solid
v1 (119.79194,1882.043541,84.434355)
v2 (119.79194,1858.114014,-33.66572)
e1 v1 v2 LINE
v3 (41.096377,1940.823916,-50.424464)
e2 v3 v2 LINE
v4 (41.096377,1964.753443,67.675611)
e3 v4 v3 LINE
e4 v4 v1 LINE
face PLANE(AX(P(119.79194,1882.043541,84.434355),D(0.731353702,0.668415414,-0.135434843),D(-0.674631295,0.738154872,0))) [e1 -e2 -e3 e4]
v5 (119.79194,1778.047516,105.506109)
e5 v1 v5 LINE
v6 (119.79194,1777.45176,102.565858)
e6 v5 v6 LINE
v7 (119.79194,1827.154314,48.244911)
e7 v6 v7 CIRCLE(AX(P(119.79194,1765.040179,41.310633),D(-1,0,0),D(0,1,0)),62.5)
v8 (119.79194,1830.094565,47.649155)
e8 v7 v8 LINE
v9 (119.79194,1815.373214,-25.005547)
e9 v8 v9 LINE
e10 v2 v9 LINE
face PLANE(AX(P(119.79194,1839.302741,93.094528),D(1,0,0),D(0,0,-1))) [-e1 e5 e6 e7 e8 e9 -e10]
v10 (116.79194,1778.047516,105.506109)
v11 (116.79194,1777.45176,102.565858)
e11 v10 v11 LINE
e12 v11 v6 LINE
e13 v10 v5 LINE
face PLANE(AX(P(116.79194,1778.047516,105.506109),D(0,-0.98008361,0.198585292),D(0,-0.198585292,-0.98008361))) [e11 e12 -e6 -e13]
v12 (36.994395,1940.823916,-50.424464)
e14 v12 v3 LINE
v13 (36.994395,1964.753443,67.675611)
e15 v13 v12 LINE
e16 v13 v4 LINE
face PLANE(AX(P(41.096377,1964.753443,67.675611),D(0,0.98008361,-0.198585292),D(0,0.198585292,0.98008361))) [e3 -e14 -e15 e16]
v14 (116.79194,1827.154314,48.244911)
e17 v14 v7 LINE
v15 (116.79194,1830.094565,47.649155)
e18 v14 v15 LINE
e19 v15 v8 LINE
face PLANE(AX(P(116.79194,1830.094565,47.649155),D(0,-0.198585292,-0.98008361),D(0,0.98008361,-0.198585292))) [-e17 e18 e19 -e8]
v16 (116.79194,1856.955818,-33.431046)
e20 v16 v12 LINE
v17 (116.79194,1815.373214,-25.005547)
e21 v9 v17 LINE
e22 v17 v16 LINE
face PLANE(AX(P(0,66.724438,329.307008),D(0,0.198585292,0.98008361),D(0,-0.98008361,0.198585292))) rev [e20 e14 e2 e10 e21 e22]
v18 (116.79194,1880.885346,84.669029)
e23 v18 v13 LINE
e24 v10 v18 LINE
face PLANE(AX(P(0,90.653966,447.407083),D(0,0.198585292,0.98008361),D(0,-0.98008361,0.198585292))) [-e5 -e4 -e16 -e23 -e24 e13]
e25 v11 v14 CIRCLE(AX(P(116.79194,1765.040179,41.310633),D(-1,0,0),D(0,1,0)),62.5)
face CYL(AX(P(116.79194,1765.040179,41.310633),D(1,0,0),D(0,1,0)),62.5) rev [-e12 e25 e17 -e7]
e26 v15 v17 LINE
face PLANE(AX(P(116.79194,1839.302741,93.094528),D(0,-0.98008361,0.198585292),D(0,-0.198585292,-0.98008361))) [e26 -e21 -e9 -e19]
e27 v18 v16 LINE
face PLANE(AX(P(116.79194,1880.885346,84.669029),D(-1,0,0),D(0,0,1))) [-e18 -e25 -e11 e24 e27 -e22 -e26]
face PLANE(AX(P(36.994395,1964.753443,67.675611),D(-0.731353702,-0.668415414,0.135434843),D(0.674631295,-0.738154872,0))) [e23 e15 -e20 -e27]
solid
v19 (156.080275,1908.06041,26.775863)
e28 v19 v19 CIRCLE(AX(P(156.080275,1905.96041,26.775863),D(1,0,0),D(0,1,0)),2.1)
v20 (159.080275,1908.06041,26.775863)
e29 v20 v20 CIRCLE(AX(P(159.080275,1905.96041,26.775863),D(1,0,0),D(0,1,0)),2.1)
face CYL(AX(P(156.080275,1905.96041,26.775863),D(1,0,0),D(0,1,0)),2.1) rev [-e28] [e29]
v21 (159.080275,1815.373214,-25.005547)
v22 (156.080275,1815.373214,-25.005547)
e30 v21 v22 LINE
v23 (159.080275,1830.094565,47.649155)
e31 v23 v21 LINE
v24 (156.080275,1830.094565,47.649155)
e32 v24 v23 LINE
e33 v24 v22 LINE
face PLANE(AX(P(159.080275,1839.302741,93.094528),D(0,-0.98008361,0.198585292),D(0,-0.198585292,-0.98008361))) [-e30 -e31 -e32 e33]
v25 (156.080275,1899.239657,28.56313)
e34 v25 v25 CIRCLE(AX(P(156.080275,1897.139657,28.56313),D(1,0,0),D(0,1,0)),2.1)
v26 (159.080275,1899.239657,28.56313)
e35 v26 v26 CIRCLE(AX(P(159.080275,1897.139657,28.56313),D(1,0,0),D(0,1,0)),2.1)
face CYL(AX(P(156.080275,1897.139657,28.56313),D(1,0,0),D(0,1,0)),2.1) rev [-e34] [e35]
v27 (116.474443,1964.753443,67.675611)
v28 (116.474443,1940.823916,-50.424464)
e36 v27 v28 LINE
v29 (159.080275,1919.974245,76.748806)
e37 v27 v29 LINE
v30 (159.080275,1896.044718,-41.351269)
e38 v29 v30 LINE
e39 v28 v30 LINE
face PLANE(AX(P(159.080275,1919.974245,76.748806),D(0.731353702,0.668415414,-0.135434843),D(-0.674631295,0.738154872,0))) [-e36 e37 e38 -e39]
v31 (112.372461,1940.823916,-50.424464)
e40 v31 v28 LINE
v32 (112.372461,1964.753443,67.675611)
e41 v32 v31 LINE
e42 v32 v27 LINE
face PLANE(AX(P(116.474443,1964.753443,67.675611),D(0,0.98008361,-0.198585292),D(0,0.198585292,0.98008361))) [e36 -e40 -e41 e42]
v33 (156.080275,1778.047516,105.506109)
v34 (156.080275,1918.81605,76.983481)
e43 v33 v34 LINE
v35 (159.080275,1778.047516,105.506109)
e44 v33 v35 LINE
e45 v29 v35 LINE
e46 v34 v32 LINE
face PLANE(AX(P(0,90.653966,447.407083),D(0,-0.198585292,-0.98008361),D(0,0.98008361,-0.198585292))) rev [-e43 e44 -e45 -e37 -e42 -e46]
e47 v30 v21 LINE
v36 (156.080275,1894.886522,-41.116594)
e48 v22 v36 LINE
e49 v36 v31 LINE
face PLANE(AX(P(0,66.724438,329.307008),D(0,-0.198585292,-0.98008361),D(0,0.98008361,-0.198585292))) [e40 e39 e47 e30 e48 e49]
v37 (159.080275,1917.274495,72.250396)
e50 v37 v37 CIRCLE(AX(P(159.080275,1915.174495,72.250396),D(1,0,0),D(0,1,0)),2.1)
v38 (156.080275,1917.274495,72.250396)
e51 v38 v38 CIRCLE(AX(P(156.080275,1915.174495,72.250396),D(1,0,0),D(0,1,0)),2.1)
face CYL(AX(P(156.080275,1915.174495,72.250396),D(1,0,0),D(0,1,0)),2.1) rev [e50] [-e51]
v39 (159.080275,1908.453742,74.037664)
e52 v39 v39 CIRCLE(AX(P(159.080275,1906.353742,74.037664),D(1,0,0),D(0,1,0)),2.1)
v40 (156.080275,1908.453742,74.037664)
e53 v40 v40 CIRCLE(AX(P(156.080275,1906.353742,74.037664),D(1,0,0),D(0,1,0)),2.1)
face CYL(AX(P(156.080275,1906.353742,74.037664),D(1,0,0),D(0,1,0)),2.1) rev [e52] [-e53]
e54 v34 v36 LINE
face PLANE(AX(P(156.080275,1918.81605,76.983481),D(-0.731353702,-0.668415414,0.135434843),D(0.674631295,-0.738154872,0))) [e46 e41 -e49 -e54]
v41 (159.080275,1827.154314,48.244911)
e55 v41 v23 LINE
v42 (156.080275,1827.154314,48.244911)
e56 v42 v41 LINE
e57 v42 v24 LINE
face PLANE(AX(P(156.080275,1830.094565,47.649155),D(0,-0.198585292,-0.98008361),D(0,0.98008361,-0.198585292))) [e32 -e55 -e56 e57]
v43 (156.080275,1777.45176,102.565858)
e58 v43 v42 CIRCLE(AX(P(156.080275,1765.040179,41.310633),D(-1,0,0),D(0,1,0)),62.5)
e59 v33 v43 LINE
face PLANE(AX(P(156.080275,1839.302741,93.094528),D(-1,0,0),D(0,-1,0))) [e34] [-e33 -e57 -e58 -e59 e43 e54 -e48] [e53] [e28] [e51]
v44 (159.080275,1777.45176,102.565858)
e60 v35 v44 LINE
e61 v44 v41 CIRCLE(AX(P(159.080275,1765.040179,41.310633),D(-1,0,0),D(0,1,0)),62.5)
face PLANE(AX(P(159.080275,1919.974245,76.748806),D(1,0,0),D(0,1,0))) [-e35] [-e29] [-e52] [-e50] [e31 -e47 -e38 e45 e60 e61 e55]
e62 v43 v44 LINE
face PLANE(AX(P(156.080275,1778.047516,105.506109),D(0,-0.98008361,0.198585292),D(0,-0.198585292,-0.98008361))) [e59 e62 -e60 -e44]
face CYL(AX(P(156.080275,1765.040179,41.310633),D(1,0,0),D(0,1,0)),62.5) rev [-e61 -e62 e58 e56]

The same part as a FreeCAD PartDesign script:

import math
import FreeCAD as App
import Part
import Sketcher

V = App.Vector
Q = App.Units.Quantity

doc = App.newDocument("Part")
body = doc.addObject("PartDesign::Body", "Body")

sketch1 = doc.addObject("Sketcher::SketchObject", "Sketch")
body.addObject(sketch1)
sketch1.Placement = App.Placement(V(0, 77.646629, 383.211607), App.Rotation(V(0, 0.98008361, -0.198585292), V(1.000000001, 0, 0), V(0, -0.198585292, -0.98008361), "ZXY"))
sketch1.addGeometry([
    Part.LineSegment(V(1826.6, 116.8, 0), V(1912.2, 37, 0)),
    Part.LineSegment(V(1912.2, 37, 0), V(1912.2, 41.1, 0)),
    Part.LineSegment(V(1912.2, 41.1, 0), V(1827.8, 119.8, 0)),
    Part.LineSegment(V(1827.8, 119.8, 0), V(1784.2, 119.8, 0)),
    Part.LineSegment(V(1784.2, 119.8, 0), V(1784.2, 116.8, 0)),
    Part.LineSegment(V(1784.2, 116.8, 0), V(1826.6, 116.8, 0)),
], False)
sketch1.addConstraint([
    Sketcher.Constraint("Coincident", 0, 2, 1, 1),
    Sketcher.Constraint("Coincident", 1, 2, 2, 1),
    Sketcher.Constraint("Coincident", 2, 2, 3, 1),
    Sketcher.Constraint("Coincident", 3, 2, 4, 1),
    Sketcher.Constraint("Coincident", 4, 2, 5, 1),
    Sketcher.Constraint("Coincident", 5, 2, 0, 1),
    Sketcher.Constraint("Vertical", 1),
    Sketcher.Constraint("Horizontal", 3),
    Sketcher.Constraint("Vertical", 4),
    Sketcher.Constraint("Horizontal", 5),
    Sketcher.Constraint("Parallel", 0, 2),
    Sketcher.Constraint("DistanceY", 4, 2, 4, 1, Q("3 mm")),
    Sketcher.Constraint("Angle", 0, Q("-43 deg")),
    Sketcher.Constraint("DistanceX", 3, 2, 1, 2, Q("128 mm")),
    Sketcher.Constraint("DistanceX", 3, 2, 3, 1, Q("43.609341 mm")),
    Sketcher.Constraint("DistanceX", 5, 1, 5, 2, Q("42.427609 mm")),
    Sketcher.Constraint("DistanceY", -1, 1, 2, 2, Q("119.79194 mm")),
    Sketcher.Constraint("DistanceX", -1, 1, 0, 2, Q("1912.183267 mm")),
])
pad1 = doc.addObject("PartDesign::Pad", "Pad")
body.addObject(pad1)
pad1.Profile = sketch1
pad1.Type = "TwoLengths"
pad1.Length = 55
pad1.Length2 = 65.5

sketch2 = doc.addObject("Sketcher::SketchObject", "Sketch001")
body.addObject(sketch2)
sketch2.AttachmentSupport = (doc.YZ_Plane, [""])
sketch2.MapMode = "FlatFace"
sketch2.AttachmentOffset = App.Placement(V(0, 0, 119.79194), App.Rotation())
sketch2.addGeometry([
    Part.LineSegment(V(1830.1, 47.6, 0), V(1839.3, 93.1, 0)),
    Part.LineSegment(V(1839.3, 93.1, 0), V(1778, 105.5, 0)),
    Part.LineSegment(V(1778, 105.5, 0), V(1777.5, 102.6, 0)),
    Part.ArcOfCircle(Part.Circle(V(1765, 41.3, 0), V(0, 0, 1), 62.5), math.radians(6), math.radians(79)),
    Part.LineSegment(V(1827.2, 48.2, 0), V(1830.1, 47.6, 0)),
], False)
sketch2.addConstraint([
    Sketcher.Constraint("Coincident", 0, 2, 1, 1),
    Sketcher.Constraint("Coincident", 1, 2, 2, 1),
    Sketcher.Constraint("Coincident", 2, 2, 3, 2),
    Sketcher.Constraint("Coincident", 3, 1, 4, 1),
    Sketcher.Constraint("Coincident", 4, 2, 0, 1),
    Sketcher.Constraint("Perpendicular", 0, 1),
    Sketcher.Constraint("Perpendicular", 1, 2),
    Sketcher.Constraint("Perpendicular", 2, 4),
    Sketcher.Constraint("Equal", 2, 4),
    Sketcher.Constraint("Radius", 3, Q("62.5 mm")),
    Sketcher.Constraint("Distance", 2, Q("3 mm")),
    Sketcher.Constraint("Distance", 1, Q("62.5 mm")),
    Sketcher.Constraint("DistanceX", 1, 2, 3, 1, Q("49.106798 mm")),
    Sketcher.Constraint("DistanceX", -1, 1, 3, 3, Q("1765.040179 mm")),
    Sketcher.Constraint("DistanceX", -1, 1, 0, 2, Q("1839.302741 mm")),
    Sketcher.Constraint("DistanceY", -1, 1, 0, 2, Q("93.094528 mm")),
])
pad2 = doc.addObject("PartDesign::Pad", "Pad001")
body.addObject(pad2)
pad2.Profile = sketch2
pad2.Length = 3
pad2.Reversed = True
body2 = doc.addObject("PartDesign::Body", "Body001")

sketch3 = doc.addObject("Sketcher::SketchObject", "Sketch002")
body2.addObject(sketch3)
sketch3.Placement = App.Placement(V(0, 77.646629, 383.211607), App.Rotation(V(0, 0.98008361, -0.198585292), V(1.000000001, 0, 0), V(0, -0.198585292, -0.98008361), "ZXY"))
sketch3.addGeometry([
    Part.LineSegment(V(1912.2, 116.5, 0), V(1866.5, 159.1, 0)),
    Part.LineSegment(V(1866.5, 159.1, 0), V(1784.2, 159.1, 0)),
    Part.LineSegment(V(1784.2, 159.1, 0), V(1784.2, 156.1, 0)),
    Part.LineSegment(V(1784.2, 156.1, 0), V(1865.3, 156.1, 0)),
    Part.LineSegment(V(1865.3, 156.1, 0), V(1912.2, 112.4, 0)),
    Part.LineSegment(V(1912.2, 112.4, 0), V(1912.2, 116.5, 0)),
], False)
sketch3.addConstraint([
    Sketcher.Constraint("Coincident", 0, 2, 1, 1),
    Sketcher.Constraint("Coincident", 1, 2, 2, 1),
    Sketcher.Constraint("Coincident", 2, 2, 3, 1),
    Sketcher.Constraint("Coincident", 3, 2, 4, 1),
    Sketcher.Constraint("Coincident", 4, 2, 5, 1),
    Sketcher.Constraint("Coincident", 5, 2, 0, 1),
    Sketcher.Constraint("Horizontal", 1),
    Sketcher.Constraint("Vertical", 2),
    Sketcher.Constraint("Horizontal", 3),
    Sketcher.Constraint("Vertical", 5),
    Sketcher.Constraint("Parallel", 0, 4),
    Sketcher.Constraint("DistanceY", 2, 2, 2, 1, Q("3 mm")),
    Sketcher.Constraint("Angle", 0, Q("137 deg")),
    Sketcher.Constraint("DistanceX", 2, 2, 4, 2, Q("128 mm")),
    Sketcher.Constraint("DistanceX", 1, 2, 1, 1, Q("82.310839 mm")),
    Sketcher.Constraint("Distance", 4, Q("64.087859 mm")),
    Sketcher.Constraint("DistanceY", -1, 1, 4, 2, Q("112.372461 mm")),
    Sketcher.Constraint("DistanceX", -1, 1, 0, 2, Q("1866.494106 mm")),
])
pad3 = doc.addObject("PartDesign::Pad", "Pad002")
body2.addObject(pad3)
pad3.Profile = sketch3
pad3.Type = "TwoLengths"
pad3.Length = 55
pad3.Length2 = 65.5

sketch4 = doc.addObject("Sketcher::SketchObject", "Sketch003")
body2.addObject(sketch4)
sketch4.AttachmentSupport = (doc.getObject("YZ_Plane001"), [""])
sketch4.MapMode = "FlatFace"
sketch4.AttachmentOffset = App.Placement(V(0, 0, 159.080275), App.Rotation())
sketch4.addGeometry([
    Part.LineSegment(V(1830.1, 47.6, 0), V(1839.3, 93.1, 0)),
    Part.LineSegment(V(1839.3, 93.1, 0), V(1778, 105.5, 0)),
    Part.LineSegment(V(1778, 105.5, 0), V(1777.5, 102.6, 0)),
    Part.ArcOfCircle(Part.Circle(V(1765, 41.3, 0), V(0, 0, 1), 62.5), math.radians(6), math.radians(79)),
    Part.LineSegment(V(1827.2, 48.2, 0), V(1830.1, 47.6, 0)),
], False)
sketch4.addConstraint([
    Sketcher.Constraint("Coincident", 0, 2, 1, 1),
    Sketcher.Constraint("Coincident", 1, 2, 2, 1),
    Sketcher.Constraint("Coincident", 2, 2, 3, 2),
    Sketcher.Constraint("Coincident", 3, 1, 4, 1),
    Sketcher.Constraint("Coincident", 4, 2, 0, 1),
    Sketcher.Constraint("Perpendicular", 0, 1),
    Sketcher.Constraint("Perpendicular", 1, 2),
    Sketcher.Constraint("Perpendicular", 2, 4),
    Sketcher.Constraint("Equal", 2, 4),
    Sketcher.Constraint("Radius", 3, Q("62.5 mm")),
    Sketcher.Constraint("Distance", 2, Q("3 mm")),
    Sketcher.Constraint("Distance", 1, Q("62.5 mm")),
    Sketcher.Constraint("DistanceX", 1, 2, 3, 1, Q("49.106798 mm")),
    Sketcher.Constraint("DistanceX", -1, 1, 3, 3, Q("1765.040179 mm")),
    Sketcher.Constraint("DistanceX", -1, 1, 0, 2, Q("1839.302741 mm")),
    Sketcher.Constraint("DistanceY", -1, 1, 0, 2, Q("93.094528 mm")),
])
pad4 = doc.addObject("PartDesign::Pad", "Pad003")
body2.addObject(pad4)
pad4.Profile = sketch4
pad4.Length = 3
pad4.Reversed = True

sketch5 = doc.addObject("Sketcher::SketchObject", "Sketch004")
body2.addObject(sketch5)
sketch5.AttachmentSupport = (doc.getObject("YZ_Plane001"), [""])
sketch5.MapMode = "FlatFace"
sketch5.AttachmentOffset = App.Placement(V(0, 0, 159.080275), App.Rotation())
sketch5.addGeometry([
    Part.Circle(V(1897.1, 28.6, 0), V(0, 0, 1), 2.1),
    Part.Circle(V(1906, 26.8, 0), V(0, 0, 1), 2.1),
    Part.Circle(V(1915.2, 72.3, 0), V(0, 0, 1), 2.1),
    Part.Circle(V(1906.4, 74, 0), V(0, 0, 1), 2.1),
], False)
sketch5.addConstraint([
    Sketcher.Constraint("Equal", 0, 1),
    Sketcher.Constraint("Equal", 1, 2),
    Sketcher.Constraint("Equal", 2, 3),
    Sketcher.Constraint("Diameter", 0, Q("4.2 mm")),
    Sketcher.Constraint("DistanceY", 1, 3, 3, 3, Q("47.261801 mm")),
    Sketcher.Constraint("DistanceY", -1, 1, 0, 3, Q("28.56313 mm")),
    Sketcher.Constraint("DistanceX", -1, 1, 1, 3, Q("1905.96041 mm")),
    Sketcher.Constraint("DistanceX", -1, 1, 0, 3, Q("1897.139657 mm")),
    Sketcher.Constraint("DistanceY", -1, 1, 1, 3, Q("26.775863 mm")),
    Sketcher.Constraint("DistanceX", -1, 1, 2, 3, Q("1915.174495 mm")),
    Sketcher.Constraint("DistanceY", -1, 1, 2, 3, Q("72.250396 mm")),
    Sketcher.Constraint("DistanceX", -1, 1, 3, 3, Q("1906.353742 mm")),
])
pocket1 = doc.addObject("PartDesign::Pocket", "Pocket")
body2.addObject(pocket1)
pocket1.Profile = sketch5
pocket1.Length = 3

doc.recompute()
